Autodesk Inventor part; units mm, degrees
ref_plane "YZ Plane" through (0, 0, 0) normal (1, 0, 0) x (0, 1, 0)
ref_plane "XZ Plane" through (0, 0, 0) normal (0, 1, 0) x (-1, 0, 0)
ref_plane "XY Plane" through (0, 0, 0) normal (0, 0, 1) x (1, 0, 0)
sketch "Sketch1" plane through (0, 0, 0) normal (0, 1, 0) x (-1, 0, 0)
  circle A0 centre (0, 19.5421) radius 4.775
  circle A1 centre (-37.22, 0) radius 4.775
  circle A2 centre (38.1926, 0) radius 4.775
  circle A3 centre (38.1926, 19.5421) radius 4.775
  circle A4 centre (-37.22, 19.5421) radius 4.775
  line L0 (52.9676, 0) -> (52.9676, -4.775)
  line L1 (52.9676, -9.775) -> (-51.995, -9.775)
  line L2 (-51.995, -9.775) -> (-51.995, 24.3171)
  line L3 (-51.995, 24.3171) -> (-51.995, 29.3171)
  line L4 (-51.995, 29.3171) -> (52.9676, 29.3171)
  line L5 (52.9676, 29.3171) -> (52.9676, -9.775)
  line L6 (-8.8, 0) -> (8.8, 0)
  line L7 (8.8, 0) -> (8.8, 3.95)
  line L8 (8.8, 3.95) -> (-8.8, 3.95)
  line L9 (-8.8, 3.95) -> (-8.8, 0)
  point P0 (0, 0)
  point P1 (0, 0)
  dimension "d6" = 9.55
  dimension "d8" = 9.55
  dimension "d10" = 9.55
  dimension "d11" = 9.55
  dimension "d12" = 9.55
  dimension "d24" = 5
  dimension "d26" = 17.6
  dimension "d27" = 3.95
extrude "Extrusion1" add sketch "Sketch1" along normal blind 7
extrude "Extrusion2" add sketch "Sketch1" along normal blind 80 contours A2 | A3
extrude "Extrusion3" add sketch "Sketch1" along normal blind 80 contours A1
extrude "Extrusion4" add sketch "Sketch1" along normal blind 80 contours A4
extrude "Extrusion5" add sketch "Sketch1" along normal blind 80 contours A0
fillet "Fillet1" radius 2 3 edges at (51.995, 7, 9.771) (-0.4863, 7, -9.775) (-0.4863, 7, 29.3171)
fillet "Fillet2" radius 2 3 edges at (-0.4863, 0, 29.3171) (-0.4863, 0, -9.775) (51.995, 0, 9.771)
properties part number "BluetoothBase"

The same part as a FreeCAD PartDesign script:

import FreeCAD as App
import Part
import Sketcher
from FreeCAD import Vector


def edges_at(feature, points):
    """Names of the edges that pass closest to the given points."""
    edges = feature.Shape.Edges
    near = lambda p: min(range(len(edges)), key=lambda i: edges[i].distToShape(Part.Vertex(*p))[0])
    return sorted({f"Edge{near(p) + 1}" for p in points})

doc = App.newDocument("Part")
body = doc.addObject("PartDesign::Body", "Body")

# Sketch on XZ plane
sketch1 = body.newObject("Sketcher::SketchObject", "Sketch")
sketch1.AttachmentSupport = (doc.getObject("XZ_Plane"), [""])
sketch1.MapMode = "FlatFace"
sketch1.addGeometry(Part.LineSegment(Vector(-53, -9.8, 0), Vector(-53, 29.3, 0)), False)
sketch1.addGeometry(Part.LineSegment(Vector(-53, 29.3, 0), Vector(52, 29.3, 0)), False)
sketch1.addGeometry(Part.LineSegment(Vector(52, 29.3, 0), Vector(52, -9.8, 0)), False)
sketch1.addGeometry(Part.LineSegment(Vector(52, -9.8, 0), Vector(-53, -9.8, 0)), False)
sketch1.addGeometry(Part.Circle(Vector(37.2, 0, 0), Vector(0, 0, 1), 4.8), False)
sketch1.addGeometry(Part.LineSegment(Vector(-8.8, 0, 0), Vector(8.8, 0, 0)), False)
sketch1.addGeometry(Part.LineSegment(Vector(8.8, 0, 0), Vector(8.8, 4, 0)), False)
sketch1.addGeometry(Part.LineSegment(Vector(8.8, 4, 0), Vector(-8.8, 4, 0)), False)
sketch1.addGeometry(Part.LineSegment(Vector(-8.8, 4, 0), Vector(-8.8, 0, 0)), False)
sketch1.addGeometry(Part.Circle(Vector(-38.2, 0, 0), Vector(0, 0, 1), 4.8), False)
sketch1.addGeometry(Part.Circle(Vector(37.2, 19.5, 0), Vector(0, 0, 1), 4.8), False)
sketch1.addGeometry(Part.Circle(Vector(0, 19.5, 0), Vector(0, 0, 1), 4.8), False)
sketch1.addGeometry(Part.Circle(Vector(-38.2, 19.5, 0), Vector(0, 0, 1), 4.8), False)
sketch1.addConstraint(Sketcher.Constraint("Coincident", 0, 2, 1, 1))
sketch1.addConstraint(Sketcher.Constraint("Coincident", 1, 2, 2, 1))
sketch1.addConstraint(Sketcher.Constraint("Coincident", 2, 2, 3, 1))
sketch1.addConstraint(Sketcher.Constraint("Coincident", 3, 2, 0, 1))
sketch1.addConstraint(Sketcher.Constraint("Coincident", 5, 2, 6, 1))
sketch1.addConstraint(Sketcher.Constraint("Coincident", 6, 2, 7, 1))
sketch1.addConstraint(Sketcher.Constraint("Coincident", 7, 2, 8, 1))
sketch1.addConstraint(Sketcher.Constraint("Coincident", 8, 2, 5, 1))
sketch1.addConstraint(Sketcher.Constraint("Vertical", 0))
sketch1.addConstraint(Sketcher.Constraint("Horizontal", 1))
sketch1.addConstraint(Sketcher.Constraint("Vertical", 2))
sketch1.addConstraint(Sketcher.Constraint("Horizontal", 3))
sketch1.addConstraint(Sketcher.Constraint("Horizontal", 5))
sketch1.addConstraint(Sketcher.Constraint("Vertical", 6))
sketch1.addConstraint(Sketcher.Constraint("Horizontal", 7))
sketch1.addConstraint(Sketcher.Constraint("Vertical", 8))
sketch1.addConstraint(Sketcher.Constraint("Equal", 4, 9))
sketch1.addConstraint(Sketcher.Constraint("Equal", 9, 10))
sketch1.addConstraint(Sketcher.Constraint("Equal", 10, 11))
sketch1.addConstraint(Sketcher.Constraint("Equal", 11, 12))
sketch1.addConstraint(Sketcher.Constraint("Symmetric", 5, 2, 8, 2, -1, 1))
sketch1.addConstraint(Sketcher.Constraint("PointOnObject", 4, 3, -1))
sketch1.addConstraint(Sketcher.Constraint("PointOnObject", 9, 3, -1))
sketch1.addConstraint(Sketcher.Constraint("PointOnObject", 11, 3, -2))
sketch1.addConstraint(Sketcher.Constraint("Horizontal", 10, 3, 11, 3))
sketch1.addConstraint(Sketcher.Constraint("Horizontal", 11, 3, 12, 3))
sketch1.addConstraint(Sketcher.Constraint("Vertical", 4, 3, 10, 3))
sketch1.addConstraint(Sketcher.Constraint("Vertical", 9, 3, 12, 3))
sketch1.addConstraint(Sketcher.Constraint("Diameter", 4, 9.55))
sketch1.addConstraint(Sketcher.Constraint("DistanceX", 5, 1, 5, 2, 17.6))
sketch1.addConstraint(Sketcher.Constraint("DistanceY", 6, 1, 6, 2, 3.95))
sketch1.addConstraint(Sketcher.Constraint("DistanceY", 0, 1, 0, 2, 39.092))
sketch1.addConstraint(Sketcher.Constraint("DistanceX", -1, 1, 4, 3, 37.22))
sketch1.addConstraint(Sketcher.Constraint("DistanceX", 1, 1, 1, 2, 104.9626))
sketch1.addConstraint(Sketcher.Constraint("DistanceY", -1, 1, 10, 3, 19.542))
sketch1.addConstraint(Sketcher.Constraint("DistanceY", -1, 1, 0, 2, 29.317))
sketch1.addConstraint(Sketcher.Constraint("DistanceX", -1, 1, 1, 2, 51.995))
sketch1.addConstraint(Sketcher.Constraint("DistanceX", 0, 2, 12, 3, 14.775))
pad1 = body.newObject("PartDesign::Pad", "Pad")
pad1.Profile = sketch1
pad1.Length = 7
pad1.Reversed = True

# Sketch on XZ plane
sketch2 = body.newObject("Sketcher::SketchObject", "Sketch001")
sketch2.AttachmentSupport = (doc.getObject("XZ_Plane"), [""])
sketch2.MapMode = "FlatFace"
sketch2.addGeometry(Part.Circle(Vector(-38.2, 0, 0), Vector(0, 0, 1), 4.8), False)
sketch2.addGeometry(Part.Circle(Vector(-38.2, 19.5, 0), Vector(0, 0, 1), 4.8), False)
sketch2.addConstraint(Sketcher.Constraint("Equal", 0, 1))
sketch2.addConstraint(Sketcher.Constraint("PointOnObject", 0, 3, -1))
sketch2.addConstraint(Sketcher.Constraint("Vertical", 0, 3, 1, 3))
sketch2.addConstraint(Sketcher.Constraint("Diameter", 0, 9.55))
sketch2.addConstraint(Sketcher.Constraint("DistanceY", -1, 1, 1, 3, 19.542))
sketch2.addConstraint(Sketcher.Constraint("DistanceX", 0, 3, -1, 1, 38.1926))
pad2 = body.newObject("PartDesign::Pad", "Pad001")
pad2.Profile = sketch2
pad2.Length = 80
pad2.Reversed = True

# Sketch on XZ plane
sketch3 = body.newObject("Sketcher::SketchObject", "Sketch002")
sketch3.AttachmentSupport = (doc.getObject("XZ_Plane"), [""])
sketch3.MapMode = "FlatFace"
sketch3.addGeometry(Part.Circle(Vector(37.2, 0, 0), Vector(0, 0, 1), 4.8), False)
sketch3.addConstraint(Sketcher.Constraint("PointOnObject", 0, 3, -1))
sketch3.addConstraint(Sketcher.Constraint("Diameter", 0, 9.55))
sketch3.addConstraint(Sketcher.Constraint("DistanceX", -1, 1, 0, 3, 37.22))
pad3 = body.newObject("PartDesign::Pad", "Pad002")
pad3.Profile = sketch3
pad3.Length = 80
pad3.Reversed = True

# Sketch on XZ plane
sketch4 = body.newObject("Sketcher::SketchObject", "Sketch003")
sketch4.AttachmentSupport = (doc.getObject("XZ_Plane"), [""])
sketch4.MapMode = "FlatFace"
sketch4.addGeometry(Part.Circle(Vector(37.2, 19.5, 0), Vector(0, 0, 1), 4.8), False)
sketch4.addConstraint(Sketcher.Constraint("Diameter", 0, 9.55))
sketch4.addConstraint(Sketcher.Constraint("DistanceX", -1, 1, 0, 3, 37.22))
sketch4.addConstraint(Sketcher.Constraint("DistanceY", -1, 1, 0, 3, 19.542))
pad4 = body.newObject("PartDesign::Pad", "Pad003")
pad4.Profile = sketch4
pad4.Length = 80
pad4.Reversed = True

# Sketch on XZ plane
sketch5 = body.newObject("Sketcher::SketchObject", "Sketch004")
sketch5.AttachmentSupport = (doc.getObject("XZ_Plane"), [""])
sketch5.MapMode = "FlatFace"
sketch5.addGeometry(Part.Circle(Vector(0, 19.5, 0), Vector(0, 0, 1), 4.8), False)
sketch5.addConstraint(Sketcher.Constraint("PointOnObject", 0, 3, -2))
sketch5.addConstraint(Sketcher.Constraint("Diameter", 0, 9.55))
sketch5.addConstraint(Sketcher.Constraint("DistanceY", -1, 1, 0, 3, 19.542))
pad5 = body.newObject("PartDesign::Pad", "Pad004")
pad5.Profile = sketch5
pad5.Length = 80
pad5.Reversed = True
doc.recompute()

fillet = body.newObject("PartDesign::Fillet", "Fillet")
fillet.Base = (pad5, edges_at(pad5, [(51.995, 7, 9.771), (-0.486, 7, -9.775), (-0.486, 7, 29.317)]))
fillet.Radius = 2
doc.recompute()

fillet2 = body.newObject("PartDesign::Fillet", "Fillet001")
fillet2.Base = (fillet, edges_at(fillet, [(-0.486, 0, 29.317), (-0.486, 0, -9.775), (51.995, 0, 9.771)]))
fillet2.Radius = 2

doc.recompute()
